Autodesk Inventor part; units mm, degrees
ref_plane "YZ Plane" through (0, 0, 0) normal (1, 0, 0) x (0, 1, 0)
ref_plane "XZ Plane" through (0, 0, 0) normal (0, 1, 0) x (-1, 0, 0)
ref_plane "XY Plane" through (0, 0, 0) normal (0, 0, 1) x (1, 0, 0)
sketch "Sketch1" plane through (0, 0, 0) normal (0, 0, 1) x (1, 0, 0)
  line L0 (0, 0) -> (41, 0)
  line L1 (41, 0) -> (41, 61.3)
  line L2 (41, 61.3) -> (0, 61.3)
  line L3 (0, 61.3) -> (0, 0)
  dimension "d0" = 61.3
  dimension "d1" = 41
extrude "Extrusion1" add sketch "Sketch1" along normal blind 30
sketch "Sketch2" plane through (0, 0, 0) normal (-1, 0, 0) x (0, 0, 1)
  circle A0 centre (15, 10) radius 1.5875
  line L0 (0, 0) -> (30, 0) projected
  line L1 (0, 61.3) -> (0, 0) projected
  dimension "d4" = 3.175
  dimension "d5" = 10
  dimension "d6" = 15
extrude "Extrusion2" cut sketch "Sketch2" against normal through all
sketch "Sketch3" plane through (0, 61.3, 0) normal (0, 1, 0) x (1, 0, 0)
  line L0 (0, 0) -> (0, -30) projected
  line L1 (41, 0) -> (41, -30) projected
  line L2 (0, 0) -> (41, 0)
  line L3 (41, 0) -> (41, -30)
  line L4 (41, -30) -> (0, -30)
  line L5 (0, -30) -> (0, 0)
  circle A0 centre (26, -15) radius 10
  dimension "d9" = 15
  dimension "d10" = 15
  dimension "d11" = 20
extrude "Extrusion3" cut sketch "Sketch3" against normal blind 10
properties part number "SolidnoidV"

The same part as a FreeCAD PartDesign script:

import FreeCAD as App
import Part
import Sketcher

V = App.Vector

doc = App.newDocument("Part")
body = doc.addObject("PartDesign::Body", "Body")

# Sketch on XY plane
sketch1 = body.newObject("Sketcher::SketchObject", "Sketch")
sketch1.AttachmentSupport = (doc.getObject("XY_Plane"), [""])
sketch1.MapMode = "FlatFace"
sketch1.addGeometry(Part.LineSegment(V(0, 61.3, 0), V(0, 0, 0)), False)
sketch1.addGeometry(Part.LineSegment(V(0, 0, 0), V(41, 0, 0)), False)
sketch1.addGeometry(Part.LineSegment(V(41, 0, 0), V(41, 61.3, 0)), False)
sketch1.addGeometry(Part.LineSegment(V(41, 61.3, 0), V(0, 61.3, 0)), False)
sketch1.addConstraint(Sketcher.Constraint("Coincident", 0, 2, 1, 1))
sketch1.addConstraint(Sketcher.Constraint("Coincident", 1, 2, 2, 1))
sketch1.addConstraint(Sketcher.Constraint("Coincident", 2, 2, 3, 1))
sketch1.addConstraint(Sketcher.Constraint("Coincident", 3, 2, 0, 1))
sketch1.addConstraint(Sketcher.Constraint("Vertical", 0))
sketch1.addConstraint(Sketcher.Constraint("Horizontal", 1))
sketch1.addConstraint(Sketcher.Constraint("Vertical", 2))
sketch1.addConstraint(Sketcher.Constraint("Horizontal", 3))
sketch1.addConstraint(Sketcher.Constraint("Coincident", 0, 2, -1, 1))
sketch1.addConstraint(Sketcher.Constraint("DistanceX", 1, 1, 1, 2, 41.0))
sketch1.addConstraint(Sketcher.Constraint("DistanceY", 0, 2, 0, 1, 61.3))
pad1 = body.newObject("PartDesign::Pad", "Pad")
pad1.Profile = sketch1
pad1.Length = 30

# Sketch on YZ plane
sketch2 = body.newObject("Sketcher::SketchObject", "Sketch001")
sketch2.AttachmentSupport = (doc.getObject("YZ_Plane"), [""])
sketch2.MapMode = "FlatFace"
sketch2.addGeometry(Part.Circle(V(10, 15, 0), V(0, 0, 1), 1.5875), False)
sketch2.addConstraint(Sketcher.Constraint("Diameter", 0, 3.175))
sketch2.addConstraint(Sketcher.Constraint("DistanceX", -1, 1, 0, 3, 10.0))
sketch2.addConstraint(Sketcher.Constraint("DistanceY", -1, 1, 0, 3, 15.0))
pocket1 = body.newObject("PartDesign::Pocket", "Pocket")
pocket1.Profile = sketch2
pocket1.Type = "ThroughAll"
pocket1.Reversed = True

# Sketch on XZ plane
sketch3 = body.newObject("Sketcher::SketchObject", "Sketch002")
sketch3.AttachmentSupport = (doc.getObject("XZ_Plane"), [""])
sketch3.MapMode = "FlatFace"
sketch3.AttachmentOffset = App.Placement(V(0, 0, -61.3), App.Rotation())
sketch3.addGeometry(Part.LineSegment(V(41, 0, 0), V(0, 0, 0)), False)
sketch3.addGeometry(Part.LineSegment(V(0, 0, 0), V(0, 30, 0)), False)
sketch3.addGeometry(Part.LineSegment(V(0, 30, 0), V(41, 30, 0)), False)
sketch3.addGeometry(Part.LineSegment(V(41, 30, 0), V(41, 0, 0)), False)
sketch3.addGeometry(Part.Circle(V(26, 15, 0), V(0, 0, 1), 10), False)
sketch3.addConstraint(Sketcher.Constraint("Coincident", 0, 2, 1, 1))
sketch3.addConstraint(Sketcher.Constraint("Coincident", 1, 2, 2, 1))
sketch3.addConstraint(Sketcher.Constraint("Coincident", 2, 2, 3, 1))
sketch3.addConstraint(Sketcher.Constraint("Coincident", 3, 2, 0, 1))
sketch3.addConstraint(Sketcher.Constraint("Horizontal", 0))
sketch3.addConstraint(Sketcher.Constraint("Vertical", 1))
sketch3.addConstraint(Sketcher.Constraint("Horizontal", 2))
sketch3.addConstraint(Sketcher.Constraint("Vertical", 3))
sketch3.addConstraint(Sketcher.Constraint("Coincident", 0, 2, -1, 1))
sketch3.addConstraint(Sketcher.Constraint("Diameter", 4, 20.0))
sketch3.addConstraint(Sketcher.Constraint("DistanceY", -1, 1, 4, 3, 15.0))
sketch3.addConstraint(Sketcher.Constraint("DistanceY", 4, 3, 1, 2, 15.0))
sketch3.addConstraint(Sketcher.Constraint("DistanceX", 4, 3, 2, 2, 15.0))
sketch3.addConstraint(Sketcher.Constraint("DistanceX", 0, 2, 0, 1, 41.0))
pocket2 = body.newObject("PartDesign::Pocket", "Pocket001")
pocket2.Profile = sketch3
pocket2.Length = 10
pocket2.Reversed = True

doc.recompute()
